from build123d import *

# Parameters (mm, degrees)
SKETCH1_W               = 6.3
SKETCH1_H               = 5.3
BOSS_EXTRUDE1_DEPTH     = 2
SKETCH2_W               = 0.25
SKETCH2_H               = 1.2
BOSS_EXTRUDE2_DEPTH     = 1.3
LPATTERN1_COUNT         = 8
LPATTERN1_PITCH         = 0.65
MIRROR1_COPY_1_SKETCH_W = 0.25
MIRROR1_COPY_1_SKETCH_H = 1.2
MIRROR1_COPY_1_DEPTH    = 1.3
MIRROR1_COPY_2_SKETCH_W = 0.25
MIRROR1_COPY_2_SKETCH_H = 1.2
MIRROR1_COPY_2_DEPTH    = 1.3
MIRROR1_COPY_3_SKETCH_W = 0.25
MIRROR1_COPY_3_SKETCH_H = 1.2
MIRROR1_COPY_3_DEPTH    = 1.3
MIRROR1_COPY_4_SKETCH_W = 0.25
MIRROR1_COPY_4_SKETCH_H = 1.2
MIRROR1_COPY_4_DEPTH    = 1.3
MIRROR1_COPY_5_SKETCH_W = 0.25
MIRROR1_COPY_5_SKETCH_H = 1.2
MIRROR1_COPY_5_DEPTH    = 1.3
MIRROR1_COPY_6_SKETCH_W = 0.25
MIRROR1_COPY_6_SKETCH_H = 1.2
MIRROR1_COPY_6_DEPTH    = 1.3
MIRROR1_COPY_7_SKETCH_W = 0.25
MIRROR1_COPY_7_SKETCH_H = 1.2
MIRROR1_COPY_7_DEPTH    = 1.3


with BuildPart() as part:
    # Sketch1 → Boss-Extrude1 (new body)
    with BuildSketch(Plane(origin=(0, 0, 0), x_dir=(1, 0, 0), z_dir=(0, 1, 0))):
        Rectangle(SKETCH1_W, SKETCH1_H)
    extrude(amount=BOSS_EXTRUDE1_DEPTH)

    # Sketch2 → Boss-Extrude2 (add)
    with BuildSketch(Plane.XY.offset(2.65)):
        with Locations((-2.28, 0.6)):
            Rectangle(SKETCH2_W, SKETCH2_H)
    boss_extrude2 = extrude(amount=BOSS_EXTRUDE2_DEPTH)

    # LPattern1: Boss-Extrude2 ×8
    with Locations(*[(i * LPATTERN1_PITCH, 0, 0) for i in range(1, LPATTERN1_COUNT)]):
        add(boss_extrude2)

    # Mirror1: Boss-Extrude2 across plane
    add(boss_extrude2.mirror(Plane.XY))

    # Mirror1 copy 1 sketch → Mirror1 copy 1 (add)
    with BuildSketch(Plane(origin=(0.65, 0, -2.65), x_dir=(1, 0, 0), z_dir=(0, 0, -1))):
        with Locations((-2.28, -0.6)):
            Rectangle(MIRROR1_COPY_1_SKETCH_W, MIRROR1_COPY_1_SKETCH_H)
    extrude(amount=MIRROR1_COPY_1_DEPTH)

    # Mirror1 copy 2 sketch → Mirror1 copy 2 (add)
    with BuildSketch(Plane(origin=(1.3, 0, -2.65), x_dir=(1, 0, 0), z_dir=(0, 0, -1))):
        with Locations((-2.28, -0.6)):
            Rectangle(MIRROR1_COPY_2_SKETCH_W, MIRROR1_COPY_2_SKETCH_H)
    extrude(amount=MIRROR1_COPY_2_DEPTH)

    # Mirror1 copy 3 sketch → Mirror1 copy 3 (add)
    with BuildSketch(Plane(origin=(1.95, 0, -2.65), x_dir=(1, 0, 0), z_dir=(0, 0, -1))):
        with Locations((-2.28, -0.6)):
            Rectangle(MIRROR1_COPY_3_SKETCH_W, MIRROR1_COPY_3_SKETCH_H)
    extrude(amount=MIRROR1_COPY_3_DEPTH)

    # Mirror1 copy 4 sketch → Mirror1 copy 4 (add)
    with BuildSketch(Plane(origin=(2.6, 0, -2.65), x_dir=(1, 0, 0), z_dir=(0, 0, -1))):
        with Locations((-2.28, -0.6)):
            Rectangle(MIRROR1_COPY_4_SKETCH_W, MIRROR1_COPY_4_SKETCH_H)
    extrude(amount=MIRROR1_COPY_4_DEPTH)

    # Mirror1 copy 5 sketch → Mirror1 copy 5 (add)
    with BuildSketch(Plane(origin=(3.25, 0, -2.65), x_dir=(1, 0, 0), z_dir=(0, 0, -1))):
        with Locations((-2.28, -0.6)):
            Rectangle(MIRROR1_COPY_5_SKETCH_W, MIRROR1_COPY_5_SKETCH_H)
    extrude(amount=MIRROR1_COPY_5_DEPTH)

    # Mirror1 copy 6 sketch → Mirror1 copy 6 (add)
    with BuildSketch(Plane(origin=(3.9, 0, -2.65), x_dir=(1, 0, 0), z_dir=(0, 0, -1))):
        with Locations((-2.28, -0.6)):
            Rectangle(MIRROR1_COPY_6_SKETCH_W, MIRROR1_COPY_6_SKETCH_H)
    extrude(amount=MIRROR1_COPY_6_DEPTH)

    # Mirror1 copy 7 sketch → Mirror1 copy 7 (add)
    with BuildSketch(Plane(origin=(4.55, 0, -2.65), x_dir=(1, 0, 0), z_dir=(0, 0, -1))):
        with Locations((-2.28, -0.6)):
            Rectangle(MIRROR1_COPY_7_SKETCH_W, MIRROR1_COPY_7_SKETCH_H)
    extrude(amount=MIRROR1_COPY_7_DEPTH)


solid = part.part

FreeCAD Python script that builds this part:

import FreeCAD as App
import Part
import Sketcher
from FreeCAD import Vector
Q = App.Units.Quantity

doc = App.newDocument("Part")
params = doc.addObject("Spreadsheet::Sheet", "Params")
for row, (alias, value) in enumerate([
    ("sketch1_width", "6.3 mm"),
    ("sketch1_height", "5.3 mm"),
    ("pad1_length", "2 mm"),
    ("sketch2_height", "1.2 mm"),
    ("sketch2_width", "0.25 mm"),
    ("pad2_length", "1.3 mm"),
    ("linearpattern_pitch", "0.65 mm"),
    ("sketch3_height", "1.2 mm"),
    ("sketch3_width", "0.25 mm"),
    ("pad3_length", "1.3 mm"),
    ("sketch4_height", "1.2 mm"),
    ("sketch4_width", "0.25 mm"),
    ("pad4_length", "1.3 mm"),
    ("sketch5_height", "1.2 mm"),
    ("sketch5_width", "0.25 mm"),
    ("pad5_length", "1.3 mm"),
    ("sketch6_height", "1.2 mm"),
    ("sketch6_width", "0.25 mm"),
    ("pad6_length", "1.3 mm"),
    ("sketch7_height", "1.2 mm"),
    ("sketch7_width", "0.25 mm"),
    ("pad7_length", "1.3 mm"),
    ("sketch8_height", "1.2 mm"),
    ("sketch8_width", "0.25 mm"),
    ("pad8_length", "1.3 mm"),
    ("sketch9_height", "1.2 mm"),
    ("sketch9_width", "0.25 mm"),
    ("pad9_length", "1.3 mm"),
], start=1):
    params.set(f"A{row}", alias)
    params.set(f"B{row}", "=" + value)
    params.setAlias(f"B{row}", alias)

body = doc.addObject("PartDesign::Body", "Body")

sketch1 = doc.addObject("Sketcher::SketchObject", "Sketch")
body.addObject(sketch1)
sketch1.AttachmentSupport = (doc.XZ_Plane, [""])
sketch1.MapMode = "FlatFace"
sketch1.addGeometry([
    Part.LineSegment(Vector(-3, -3, 0), Vector(-3, 3, 0)),
    Part.LineSegment(Vector(-3, 3, 0), Vector(3, 3, 0)),
    Part.LineSegment(Vector(3, 3, 0), Vector(3, -3, 0)),
    Part.LineSegment(Vector(3, -3, 0), Vector(-3, -3, 0)),
], False)
sketch1.addConstraint([
    Sketcher.Constraint("Coincident", 0, 2, 1, 1),
    Sketcher.Constraint("Coincident", 1, 2, 2, 1),
    Sketcher.Constraint("Coincident", 2, 2, 3, 1),
    Sketcher.Constraint("Coincident", 3, 2, 0, 1),
    Sketcher.Constraint("Vertical", 0),
    Sketcher.Constraint("Horizontal", 1),
    Sketcher.Constraint("Vertical", 2),
    Sketcher.Constraint("Horizontal", 3),
    Sketcher.Constraint("Symmetric", 0, 2, 2, 2, -1, 1),
    Sketcher.Constraint("DistanceX", 1, 1, 1, 2, Q("6.3 mm")),
    Sketcher.Constraint("DistanceY", 0, 1, 0, 2, Q("5.3 mm")),
])
sketch1.setExpression("Constraints[9]", "Params.sketch1_width")
sketch1.setExpression("Constraints[10]", "Params.sketch1_height")
pad1 = doc.addObject("PartDesign::Pad", "Pad")
body.addObject(pad1)
pad1.Profile = sketch1
pad1.setExpression("Length", "Params.pad1_length")
pad1.Reversed = True

sketch2 = doc.addObject("Sketcher::SketchObject", "Sketch001")
body.addObject(sketch2)
sketch2.AttachmentSupport = (doc.XY_Plane, [""])
sketch2.MapMode = "FlatFace"
sketch2.AttachmentOffset = App.Placement(Vector(0, 0, 2.65), App.Rotation())
sketch2.addGeometry([
    Part.LineSegment(Vector(-2.4, 1.2, 0), Vector(-2.4, 0, 0)),
    Part.LineSegment(Vector(-2.4, 0, 0), Vector(-2.15, 0, 0)),
    Part.LineSegment(Vector(-2.15, 0, 0), Vector(-2.15, 1.2, 0)),
    Part.LineSegment(Vector(-2.15, 1.2, 0), Vector(-2.4, 1.2, 0)),
], False)
sketch2.addConstraint([
    Sketcher.Constraint("Coincident", 0, 2, 1, 1),
    Sketcher.Constraint("Coincident", 1, 2, 2, 1),
    Sketcher.Constraint("Coincident", 2, 2, 3, 1),
    Sketcher.Constraint("Coincident", 3, 2, 0, 1),
    Sketcher.Constraint("Vertical", 0),
    Sketcher.Constraint("Horizontal", 1),
    Sketcher.Constraint("Vertical", 2),
    Sketcher.Constraint("Horizontal", 3),
    Sketcher.Constraint("PointOnObject", 0, 2, -1),
    Sketcher.Constraint("DistanceY", 0, 2, 0, 1, Q("1.2 mm")),
    Sketcher.Constraint("DistanceX", 1, 1, 1, 2, Q("0.25 mm")),
    Sketcher.Constraint("DistanceX", 0, 2, -1, 1, Q("2.405 mm")),
])
sketch2.setExpression("Constraints[9]", "Params.sketch2_height")
sketch2.setExpression("Constraints[10]", "Params.sketch2_width")
pad2 = doc.addObject("PartDesign::Pad", "Pad001")
body.addObject(pad2)
pad2.Profile = sketch2
pad2.setExpression("Length", "Params.pad2_length")
doc.recompute()

linearpattern = doc.addObject("PartDesign::LinearPattern", "LinearPattern")
body.addObject(linearpattern)
linearpattern.Originals = [pad2]
linearpattern.Direction = (doc.X_Axis, [""])
linearpattern.Mode = "offset"
linearpattern.setExpression("Offset", "Params.linearpattern_pitch")
linearpattern.Occurrences = 8
body.Tip = linearpattern
doc.recompute()

mirrored = doc.addObject("PartDesign::Mirrored", "Mirrored")
body.addObject(mirrored)
mirrored.Originals = [pad2]
mirrored.MirrorPlane = (doc.XY_Plane, [""])
body.Tip = mirrored

sketch3 = doc.addObject("Sketcher::SketchObject", "Sketch002")
body.addObject(sketch3)
sketch3.AttachmentSupport = (doc.XY_Plane, [""])
sketch3.MapMode = "FlatFace"
sketch3.AttachmentOffset = App.Placement(Vector(0, 0, -2.65), App.Rotation())
sketch3.addGeometry([
    Part.LineSegment(Vector(-1.75, 0, 0), Vector(-1.75, 1.2, 0)),
    Part.LineSegment(Vector(-1.75, 1.2, 0), Vector(-1.5, 1.2, 0)),
    Part.LineSegment(Vector(-1.5, 1.2, 0), Vector(-1.5, 0, 0)),
    Part.LineSegment(Vector(-1.5, 0, 0), Vector(-1.75, 0, 0)),
], False)
sketch3.addConstraint([
    Sketcher.Constraint("Coincident", 0, 2, 1, 1),
    Sketcher.Constraint("Coincident", 1, 2, 2, 1),
    Sketcher.Constraint("Coincident", 2, 2, 3, 1),
    Sketcher.Constraint("Coincident", 3, 2, 0, 1),
    Sketcher.Constraint("Vertical", 0),
    Sketcher.Constraint("Horizontal", 1),
    Sketcher.Constraint("Vertical", 2),
    Sketcher.Constraint("Horizontal", 3),
    Sketcher.Constraint("PointOnObject", 2, 2, -1),
    Sketcher.Constraint("DistanceY", 0, 1, 0, 2, Q("1.2 mm")),
    Sketcher.Constraint("DistanceX", 1, 1, 1, 2, Q("0.25 mm")),
    Sketcher.Constraint("DistanceX", 0, 2, -1, 1, Q("1.755 mm")),
])
sketch3.setExpression("Constraints[9]", "Params.sketch3_height")
sketch3.setExpression("Constraints[10]", "Params.sketch3_width")
pad3 = doc.addObject("PartDesign::Pad", "Pad002")
body.addObject(pad3)
pad3.Profile = sketch3
pad3.setExpression("Length", "Params.pad3_length")
pad3.Reversed = True

sketch4 = doc.addObject("Sketcher::SketchObject", "Sketch003")
body.addObject(sketch4)
sketch4.AttachmentSupport = (doc.XY_Plane, [""])
sketch4.MapMode = "FlatFace"
sketch4.AttachmentOffset = App.Placement(Vector(0, 0, -2.65), App.Rotation())
sketch4.addGeometry([
    Part.LineSegment(Vector(-1.1, 0, 0), Vector(-1.1, 1.2, 0)),
    Part.LineSegment(Vector(-1.1, 1.2, 0), Vector(-0.85, 1.2, 0)),
    Part.LineSegment(Vector(-0.85, 1.2, 0), Vector(-0.85, 0, 0)),
    Part.LineSegment(Vector(-0.85, 0, 0), Vector(-1.1, 0, 0)),
], False)
sketch4.addConstraint([
    Sketcher.Constraint("Coincident", 0, 2, 1, 1),
    Sketcher.Constraint("Coincident", 1, 2, 2, 1),
    Sketcher.Constraint("Coincident", 2, 2, 3, 1),
    Sketcher.Constraint("Coincident", 3, 2, 0, 1),
    Sketcher.Constraint("Vertical", 0),
    Sketcher.Constraint("Horizontal", 1),
    Sketcher.Constraint("Vertical", 2),
    Sketcher.Constraint("Horizontal", 3),
    Sketcher.Constraint("PointOnObject", 2, 2, -1),
    Sketcher.Constraint("DistanceY", 0, 1, 0, 2, Q("1.2 mm")),
    Sketcher.Constraint("DistanceX", 1, 1, 1, 2, Q("0.25 mm")),
    Sketcher.Constraint("DistanceX", 0, 2, -1, 1, Q("1.105 mm")),
])
sketch4.setExpression("Constraints[9]", "Params.sketch4_height")
sketch4.setExpression("Constraints[10]", "Params.sketch4_width")
pad4 = doc.addObject("PartDesign::Pad", "Pad003")
body.addObject(pad4)
pad4.Profile = sketch4
pad4.setExpression("Length", "Params.pad4_length")
pad4.Reversed = True

sketch5 = doc.addObject("Sketcher::SketchObject", "Sketch004")
body.addObject(sketch5)
sketch5.AttachmentSupport = (doc.XY_Plane, [""])
sketch5.MapMode = "FlatFace"
sketch5.AttachmentOffset = App.Placement(Vector(0, 0, -2.65), App.Rotation())
sketch5.addGeometry([
    Part.LineSegment(Vector(-0.46, 0, 0), Vector(-0.46, 1.2, 0)),
    Part.LineSegment(Vector(-0.46, 1.2, 0), Vector(-0.2, 1.2, 0)),
    Part.LineSegment(Vector(-0.2, 1.2, 0), Vector(-0.2, 0, 0)),
    Part.LineSegment(Vector(-0.2, 0, 0), Vector(-0.46, 0, 0)),
], False)
sketch5.addConstraint([
    Sketcher.Constraint("Coincident", 0, 2, 1, 1),
    Sketcher.Constraint("Coincident", 1, 2, 2, 1),
    Sketcher.Constraint("Coincident", 2, 2, 3, 1),
    Sketcher.Constraint("Coincident", 3, 2, 0, 1),
    Sketcher.Constraint("Vertical", 0),
    Sketcher.Constraint("Horizontal", 1),
    Sketcher.Constraint("Vertical", 2),
    Sketcher.Constraint("Horizontal", 3),
    Sketcher.Constraint("PointOnObject", 2, 2, -1),
    Sketcher.Constraint("DistanceY", 0, 1, 0, 2, Q("1.2 mm")),
    Sketcher.Constraint("DistanceX", 1, 1, 1, 2, Q("0.25 mm")),
    Sketcher.Constraint("DistanceX", 0, 2, -1, 1, Q("0.455 mm")),
])
sketch5.setExpression("Constraints[9]", "Params.sketch5_height")
sketch5.setExpression("Constraints[10]", "Params.sketch5_width")
pad5 = doc.addObject("PartDesign::Pad", "Pad004")
body.addObject(pad5)
pad5.Profile = sketch5
pad5.setExpression("Length", "Params.pad5_length")
pad5.Reversed = True

sketch6 = doc.addObject("Sketcher::SketchObject", "Sketch005")
body.addObject(sketch6)
sketch6.AttachmentSupport = (doc.XY_Plane, [""])
sketch6.MapMode = "FlatFace"
sketch6.AttachmentOffset = App.Placement(Vector(0, 0, -2.65), App.Rotation())
sketch6.addGeometry([
    Part.LineSegment(Vector(0.2, 0, 0), Vector(0.2, 1.2, 0)),
    Part.LineSegment(Vector(0.2, 1.2, 0), Vector(0.45, 1.2, 0)),
    Part.LineSegment(Vector(0.45, 1.2, 0), Vector(0.45, 0, 0)),
    Part.LineSegment(Vector(0.45, 0, 0), Vector(0.2, 0, 0)),
], False)
sketch6.addConstraint([
    Sketcher.Constraint("Coincident", 0, 2, 1, 1),
    Sketcher.Constraint("Coincident", 1, 2, 2, 1),
    Sketcher.Constraint("Coincident", 2, 2, 3, 1),
    Sketcher.Constraint("Coincident", 3, 2, 0, 1),
    Sketcher.Constraint("Vertical", 0),
    Sketcher.Constraint("Horizontal", 1),
    Sketcher.Constraint("Vertical", 2),
    Sketcher.Constraint("Horizontal", 3),
    Sketcher.Constraint("PointOnObject", 2, 2, -1),
    Sketcher.Constraint("DistanceY", 0, 1, 0, 2, Q("1.2 mm")),
    Sketcher.Constraint("DistanceX", 1, 1, 1, 2, Q("0.25 mm")),
    Sketcher.Constraint("DistanceX", -1, 1, 0, 2, Q("0.195 mm")),
])
sketch6.setExpression("Constraints[9]", "Params.sketch6_height")
sketch6.setExpression("Constraints[10]", "Params.sketch6_width")
pad6 = doc.addObject("PartDesign::Pad", "Pad005")
body.addObject(pad6)
pad6.Profile = sketch6
pad6.setExpression("Length", "Params.pad6_length")
pad6.Reversed = True

sketch7 = doc.addObject("Sketcher::SketchObject", "Sketch006")
body.addObject(sketch7)
sketch7.AttachmentSupport = (doc.XY_Plane, [""])
sketch7.MapMode = "FlatFace"
sketch7.AttachmentOffset = App.Placement(Vector(0, 0, -2.65), App.Rotation())
sketch7.addGeometry([
    Part.LineSegment(Vector(0.84, 0, 0), Vector(0.84, 1.2, 0)),
    Part.LineSegment(Vector(0.84, 1.2, 0), Vector(1.09, 1.2, 0)),
    Part.LineSegment(Vector(1.09, 1.2, 0), Vector(1.09, 0, 0)),
    Part.LineSegment(Vector(1.09, 0, 0), Vector(0.84, 0, 0)),
], False)
sketch7.addConstraint([
    Sketcher.Constraint("Coincident", 0, 2, 1, 1),
    Sketcher.Constraint("Coincident", 1, 2, 2, 1),
    Sketcher.Constraint("Coincident", 2, 2, 3, 1),
    Sketcher.Constraint("Coincident", 3, 2, 0, 1),
    Sketcher.Constraint("Vertical", 0),
    Sketcher.Constraint("Horizontal", 1),
    Sketcher.Constraint("Vertical", 2),
    Sketcher.Constraint("Horizontal", 3),
    Sketcher.Constraint("PointOnObject", 2, 2, -1),
    Sketcher.Constraint("DistanceY", 0, 1, 0, 2, Q("1.2 mm")),
    Sketcher.Constraint("DistanceX", 1, 1, 1, 2, Q("0.25 mm")),
    Sketcher.Constraint("DistanceX", -1, 1, 0, 2, Q("0.845 mm")),
])
sketch7.setExpression("Constraints[9]", "Params.sketch7_height")
sketch7.setExpression("Constraints[10]", "Params.sketch7_width")
pad7 = doc.addObject("PartDesign::Pad", "Pad006")
body.addObject(pad7)
pad7.Profile = sketch7
pad7.setExpression("Length", "Params.pad7_length")
pad7.Reversed = True

sketch8 = doc.addObject("Sketcher::SketchObject", "Sketch007")
body.addObject(sketch8)
sketch8.AttachmentSupport = (doc.XY_Plane, [""])
sketch8.MapMode = "FlatFace"
sketch8.AttachmentOffset = App.Placement(Vector(0, 0, -2.65), App.Rotation())
sketch8.addGeometry([
    Part.LineSegment(Vector(1.5, 0, 0), Vector(1.5, 1.2, 0)),
    Part.LineSegment(Vector(1.5, 1.2, 0), Vector(1.75, 1.2, 0)),
    Part.LineSegment(Vector(1.75, 1.2, 0), Vector(1.75, 0, 0)),
    Part.LineSegment(Vector(1.75, 0, 0), Vector(1.5, 0, 0)),
], False)
sketch8.addConstraint([
    Sketcher.Constraint("Coincident", 0, 2, 1, 1),
    Sketcher.Constraint("Coincident", 1, 2, 2, 1),
    Sketcher.Constraint("Coincident", 2, 2, 3, 1),
    Sketcher.Constraint("Coincident", 3, 2, 0, 1),
    Sketcher.Constraint("Vertical", 0),
    Sketcher.Constraint("Horizontal", 1),
    Sketcher.Constraint("Vertical", 2),
    Sketcher.Constraint("Horizontal", 3),
    Sketcher.Constraint("PointOnObject", 2, 2, -1),
    Sketcher.Constraint("DistanceY", 0, 1, 0, 2, Q("1.2 mm")),
    Sketcher.Constraint("DistanceX", 1, 1, 1, 2, Q("0.25 mm")),
    Sketcher.Constraint("DistanceX", -1, 1, 0, 2, Q("1.495 mm")),
])
sketch8.setExpression("Constraints[9]", "Params.sketch8_height")
sketch8.setExpression("Constraints[10]", "Params.sketch8_width")
pad8 = doc.addObject("PartDesign::Pad", "Pad007")
body.addObject(pad8)
pad8.Profile = sketch8
pad8.setExpression("Length", "Params.pad8_length")
pad8.Reversed = True

sketch9 = doc.addObject("Sketcher::SketchObject", "Sketch008")
body.addObject(sketch9)
sketch9.AttachmentSupport = (doc.XY_Plane, [""])
sketch9.MapMode = "FlatFace"
sketch9.AttachmentOffset = App.Placement(Vector(0, 0, -2.65), App.Rotation())
sketch9.addGeometry([
    Part.LineSegment(Vector(2.15, 0, 0), Vector(2.15, 1.2, 0)),
    Part.LineSegment(Vector(2.15, 1.2, 0), Vector(2.4, 1.2, 0)),
    Part.LineSegment(Vector(2.4, 1.2, 0), Vector(2.4, 0, 0)),
    Part.LineSegment(Vector(2.4, 0, 0), Vector(2.15, 0, 0)),
], False)
sketch9.addConstraint([
    Sketcher.Constraint("Coincident", 0, 2, 1, 1),
    Sketcher.Constraint("Coincident", 1, 2, 2, 1),
    Sketcher.Constraint("Coincident", 2, 2, 3, 1),
    Sketcher.Constraint("Coincident", 3, 2, 0, 1),
    Sketcher.Constraint("Vertical", 0),
    Sketcher.Constraint("Horizontal", 1),
    Sketcher.Constraint("Vertical", 2),
    Sketcher.Constraint("Horizontal", 3),
    Sketcher.Constraint("PointOnObject", 2, 2, -1),
    Sketcher.Constraint("DistanceY", 0, 1, 0, 2, Q("1.2 mm")),
    Sketcher.Constraint("DistanceX", 1, 1, 1, 2, Q("0.25 mm")),
    Sketcher.Constraint("DistanceX", -1, 1, 0, 2, Q("2.145 mm")),
])
sketch9.setExpression("Constraints[9]", "Params.sketch9_height")
sketch9.setExpression("Constraints[10]", "Params.sketch9_width")
pad9 = doc.addObject("PartDesign::Pad", "Pad008")
body.addObject(pad9)
pad9.Profile = sketch9
pad9.setExpression("Length", "Params.pad9_length")
pad9.Reversed = True

doc.recompute()
